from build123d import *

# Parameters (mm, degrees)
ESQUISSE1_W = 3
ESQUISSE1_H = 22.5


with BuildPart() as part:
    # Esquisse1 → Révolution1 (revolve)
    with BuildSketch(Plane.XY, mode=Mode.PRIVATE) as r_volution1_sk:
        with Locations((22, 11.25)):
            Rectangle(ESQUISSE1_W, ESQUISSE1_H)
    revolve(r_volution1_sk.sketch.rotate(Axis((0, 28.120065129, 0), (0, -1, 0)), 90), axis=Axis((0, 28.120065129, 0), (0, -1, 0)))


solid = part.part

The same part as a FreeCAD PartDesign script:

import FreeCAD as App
import Part
import Sketcher
from FreeCAD import Vector
Q = App.Units.Quantity


def add_polygon(sketch, points):
    """Adds a closed chain of lines whose ends are joined by coincident constraints."""
    first, n = sketch.GeometryCount, len(points)
    for a, b in zip(points, points[1:] + points[:1]):
        sketch.addGeometry(Part.LineSegment(App.Vector(*a, 0), App.Vector(*b, 0)), False)
    for i in range(n):
        sketch.addConstraint(Sketcher.Constraint("Coincident", first + i, 2, first + (i + 1) % n, 1))

doc = App.newDocument("Part")
body = doc.addObject("PartDesign::Body", "Body")

# Sketch on XY plane
sketch1 = doc.addObject("Sketcher::SketchObject", "Sketch")
body.addObject(sketch1)
sketch1.AttachmentSupport = (doc.XY_Plane, [""])
sketch1.MapMode = "FlatFace"
add_polygon(sketch1, [(20.5, 22.5), (20.5, 0), (23.5, 0), (23.5, 22.5)])  # lines 0-3
sketch1.addConstraint([
    Sketcher.Constraint("Vertical", 0),
    Sketcher.Constraint("Horizontal", 1),
    Sketcher.Constraint("Vertical", 2),
    Sketcher.Constraint("Horizontal", 3),
    Sketcher.Constraint("PointOnObject", 0, 2, -1),
    Sketcher.Constraint("DistanceX", 1, 1, 1, 2, Q("3 mm")),
    Sketcher.Constraint("DistanceY", 0, 2, 0, 1, Q("22.5 mm")),
    Sketcher.Constraint("DistanceX", -1, 1, 0, 2, Q("20.5 mm")),
])
revolution = doc.addObject("PartDesign::Revolution", "Revolution")
body.addObject(revolution)
revolution.Profile = sketch1
revolution.ReferenceAxis = (sketch1, ["V_Axis"])
revolution.Angle = 360

doc.recompute()
